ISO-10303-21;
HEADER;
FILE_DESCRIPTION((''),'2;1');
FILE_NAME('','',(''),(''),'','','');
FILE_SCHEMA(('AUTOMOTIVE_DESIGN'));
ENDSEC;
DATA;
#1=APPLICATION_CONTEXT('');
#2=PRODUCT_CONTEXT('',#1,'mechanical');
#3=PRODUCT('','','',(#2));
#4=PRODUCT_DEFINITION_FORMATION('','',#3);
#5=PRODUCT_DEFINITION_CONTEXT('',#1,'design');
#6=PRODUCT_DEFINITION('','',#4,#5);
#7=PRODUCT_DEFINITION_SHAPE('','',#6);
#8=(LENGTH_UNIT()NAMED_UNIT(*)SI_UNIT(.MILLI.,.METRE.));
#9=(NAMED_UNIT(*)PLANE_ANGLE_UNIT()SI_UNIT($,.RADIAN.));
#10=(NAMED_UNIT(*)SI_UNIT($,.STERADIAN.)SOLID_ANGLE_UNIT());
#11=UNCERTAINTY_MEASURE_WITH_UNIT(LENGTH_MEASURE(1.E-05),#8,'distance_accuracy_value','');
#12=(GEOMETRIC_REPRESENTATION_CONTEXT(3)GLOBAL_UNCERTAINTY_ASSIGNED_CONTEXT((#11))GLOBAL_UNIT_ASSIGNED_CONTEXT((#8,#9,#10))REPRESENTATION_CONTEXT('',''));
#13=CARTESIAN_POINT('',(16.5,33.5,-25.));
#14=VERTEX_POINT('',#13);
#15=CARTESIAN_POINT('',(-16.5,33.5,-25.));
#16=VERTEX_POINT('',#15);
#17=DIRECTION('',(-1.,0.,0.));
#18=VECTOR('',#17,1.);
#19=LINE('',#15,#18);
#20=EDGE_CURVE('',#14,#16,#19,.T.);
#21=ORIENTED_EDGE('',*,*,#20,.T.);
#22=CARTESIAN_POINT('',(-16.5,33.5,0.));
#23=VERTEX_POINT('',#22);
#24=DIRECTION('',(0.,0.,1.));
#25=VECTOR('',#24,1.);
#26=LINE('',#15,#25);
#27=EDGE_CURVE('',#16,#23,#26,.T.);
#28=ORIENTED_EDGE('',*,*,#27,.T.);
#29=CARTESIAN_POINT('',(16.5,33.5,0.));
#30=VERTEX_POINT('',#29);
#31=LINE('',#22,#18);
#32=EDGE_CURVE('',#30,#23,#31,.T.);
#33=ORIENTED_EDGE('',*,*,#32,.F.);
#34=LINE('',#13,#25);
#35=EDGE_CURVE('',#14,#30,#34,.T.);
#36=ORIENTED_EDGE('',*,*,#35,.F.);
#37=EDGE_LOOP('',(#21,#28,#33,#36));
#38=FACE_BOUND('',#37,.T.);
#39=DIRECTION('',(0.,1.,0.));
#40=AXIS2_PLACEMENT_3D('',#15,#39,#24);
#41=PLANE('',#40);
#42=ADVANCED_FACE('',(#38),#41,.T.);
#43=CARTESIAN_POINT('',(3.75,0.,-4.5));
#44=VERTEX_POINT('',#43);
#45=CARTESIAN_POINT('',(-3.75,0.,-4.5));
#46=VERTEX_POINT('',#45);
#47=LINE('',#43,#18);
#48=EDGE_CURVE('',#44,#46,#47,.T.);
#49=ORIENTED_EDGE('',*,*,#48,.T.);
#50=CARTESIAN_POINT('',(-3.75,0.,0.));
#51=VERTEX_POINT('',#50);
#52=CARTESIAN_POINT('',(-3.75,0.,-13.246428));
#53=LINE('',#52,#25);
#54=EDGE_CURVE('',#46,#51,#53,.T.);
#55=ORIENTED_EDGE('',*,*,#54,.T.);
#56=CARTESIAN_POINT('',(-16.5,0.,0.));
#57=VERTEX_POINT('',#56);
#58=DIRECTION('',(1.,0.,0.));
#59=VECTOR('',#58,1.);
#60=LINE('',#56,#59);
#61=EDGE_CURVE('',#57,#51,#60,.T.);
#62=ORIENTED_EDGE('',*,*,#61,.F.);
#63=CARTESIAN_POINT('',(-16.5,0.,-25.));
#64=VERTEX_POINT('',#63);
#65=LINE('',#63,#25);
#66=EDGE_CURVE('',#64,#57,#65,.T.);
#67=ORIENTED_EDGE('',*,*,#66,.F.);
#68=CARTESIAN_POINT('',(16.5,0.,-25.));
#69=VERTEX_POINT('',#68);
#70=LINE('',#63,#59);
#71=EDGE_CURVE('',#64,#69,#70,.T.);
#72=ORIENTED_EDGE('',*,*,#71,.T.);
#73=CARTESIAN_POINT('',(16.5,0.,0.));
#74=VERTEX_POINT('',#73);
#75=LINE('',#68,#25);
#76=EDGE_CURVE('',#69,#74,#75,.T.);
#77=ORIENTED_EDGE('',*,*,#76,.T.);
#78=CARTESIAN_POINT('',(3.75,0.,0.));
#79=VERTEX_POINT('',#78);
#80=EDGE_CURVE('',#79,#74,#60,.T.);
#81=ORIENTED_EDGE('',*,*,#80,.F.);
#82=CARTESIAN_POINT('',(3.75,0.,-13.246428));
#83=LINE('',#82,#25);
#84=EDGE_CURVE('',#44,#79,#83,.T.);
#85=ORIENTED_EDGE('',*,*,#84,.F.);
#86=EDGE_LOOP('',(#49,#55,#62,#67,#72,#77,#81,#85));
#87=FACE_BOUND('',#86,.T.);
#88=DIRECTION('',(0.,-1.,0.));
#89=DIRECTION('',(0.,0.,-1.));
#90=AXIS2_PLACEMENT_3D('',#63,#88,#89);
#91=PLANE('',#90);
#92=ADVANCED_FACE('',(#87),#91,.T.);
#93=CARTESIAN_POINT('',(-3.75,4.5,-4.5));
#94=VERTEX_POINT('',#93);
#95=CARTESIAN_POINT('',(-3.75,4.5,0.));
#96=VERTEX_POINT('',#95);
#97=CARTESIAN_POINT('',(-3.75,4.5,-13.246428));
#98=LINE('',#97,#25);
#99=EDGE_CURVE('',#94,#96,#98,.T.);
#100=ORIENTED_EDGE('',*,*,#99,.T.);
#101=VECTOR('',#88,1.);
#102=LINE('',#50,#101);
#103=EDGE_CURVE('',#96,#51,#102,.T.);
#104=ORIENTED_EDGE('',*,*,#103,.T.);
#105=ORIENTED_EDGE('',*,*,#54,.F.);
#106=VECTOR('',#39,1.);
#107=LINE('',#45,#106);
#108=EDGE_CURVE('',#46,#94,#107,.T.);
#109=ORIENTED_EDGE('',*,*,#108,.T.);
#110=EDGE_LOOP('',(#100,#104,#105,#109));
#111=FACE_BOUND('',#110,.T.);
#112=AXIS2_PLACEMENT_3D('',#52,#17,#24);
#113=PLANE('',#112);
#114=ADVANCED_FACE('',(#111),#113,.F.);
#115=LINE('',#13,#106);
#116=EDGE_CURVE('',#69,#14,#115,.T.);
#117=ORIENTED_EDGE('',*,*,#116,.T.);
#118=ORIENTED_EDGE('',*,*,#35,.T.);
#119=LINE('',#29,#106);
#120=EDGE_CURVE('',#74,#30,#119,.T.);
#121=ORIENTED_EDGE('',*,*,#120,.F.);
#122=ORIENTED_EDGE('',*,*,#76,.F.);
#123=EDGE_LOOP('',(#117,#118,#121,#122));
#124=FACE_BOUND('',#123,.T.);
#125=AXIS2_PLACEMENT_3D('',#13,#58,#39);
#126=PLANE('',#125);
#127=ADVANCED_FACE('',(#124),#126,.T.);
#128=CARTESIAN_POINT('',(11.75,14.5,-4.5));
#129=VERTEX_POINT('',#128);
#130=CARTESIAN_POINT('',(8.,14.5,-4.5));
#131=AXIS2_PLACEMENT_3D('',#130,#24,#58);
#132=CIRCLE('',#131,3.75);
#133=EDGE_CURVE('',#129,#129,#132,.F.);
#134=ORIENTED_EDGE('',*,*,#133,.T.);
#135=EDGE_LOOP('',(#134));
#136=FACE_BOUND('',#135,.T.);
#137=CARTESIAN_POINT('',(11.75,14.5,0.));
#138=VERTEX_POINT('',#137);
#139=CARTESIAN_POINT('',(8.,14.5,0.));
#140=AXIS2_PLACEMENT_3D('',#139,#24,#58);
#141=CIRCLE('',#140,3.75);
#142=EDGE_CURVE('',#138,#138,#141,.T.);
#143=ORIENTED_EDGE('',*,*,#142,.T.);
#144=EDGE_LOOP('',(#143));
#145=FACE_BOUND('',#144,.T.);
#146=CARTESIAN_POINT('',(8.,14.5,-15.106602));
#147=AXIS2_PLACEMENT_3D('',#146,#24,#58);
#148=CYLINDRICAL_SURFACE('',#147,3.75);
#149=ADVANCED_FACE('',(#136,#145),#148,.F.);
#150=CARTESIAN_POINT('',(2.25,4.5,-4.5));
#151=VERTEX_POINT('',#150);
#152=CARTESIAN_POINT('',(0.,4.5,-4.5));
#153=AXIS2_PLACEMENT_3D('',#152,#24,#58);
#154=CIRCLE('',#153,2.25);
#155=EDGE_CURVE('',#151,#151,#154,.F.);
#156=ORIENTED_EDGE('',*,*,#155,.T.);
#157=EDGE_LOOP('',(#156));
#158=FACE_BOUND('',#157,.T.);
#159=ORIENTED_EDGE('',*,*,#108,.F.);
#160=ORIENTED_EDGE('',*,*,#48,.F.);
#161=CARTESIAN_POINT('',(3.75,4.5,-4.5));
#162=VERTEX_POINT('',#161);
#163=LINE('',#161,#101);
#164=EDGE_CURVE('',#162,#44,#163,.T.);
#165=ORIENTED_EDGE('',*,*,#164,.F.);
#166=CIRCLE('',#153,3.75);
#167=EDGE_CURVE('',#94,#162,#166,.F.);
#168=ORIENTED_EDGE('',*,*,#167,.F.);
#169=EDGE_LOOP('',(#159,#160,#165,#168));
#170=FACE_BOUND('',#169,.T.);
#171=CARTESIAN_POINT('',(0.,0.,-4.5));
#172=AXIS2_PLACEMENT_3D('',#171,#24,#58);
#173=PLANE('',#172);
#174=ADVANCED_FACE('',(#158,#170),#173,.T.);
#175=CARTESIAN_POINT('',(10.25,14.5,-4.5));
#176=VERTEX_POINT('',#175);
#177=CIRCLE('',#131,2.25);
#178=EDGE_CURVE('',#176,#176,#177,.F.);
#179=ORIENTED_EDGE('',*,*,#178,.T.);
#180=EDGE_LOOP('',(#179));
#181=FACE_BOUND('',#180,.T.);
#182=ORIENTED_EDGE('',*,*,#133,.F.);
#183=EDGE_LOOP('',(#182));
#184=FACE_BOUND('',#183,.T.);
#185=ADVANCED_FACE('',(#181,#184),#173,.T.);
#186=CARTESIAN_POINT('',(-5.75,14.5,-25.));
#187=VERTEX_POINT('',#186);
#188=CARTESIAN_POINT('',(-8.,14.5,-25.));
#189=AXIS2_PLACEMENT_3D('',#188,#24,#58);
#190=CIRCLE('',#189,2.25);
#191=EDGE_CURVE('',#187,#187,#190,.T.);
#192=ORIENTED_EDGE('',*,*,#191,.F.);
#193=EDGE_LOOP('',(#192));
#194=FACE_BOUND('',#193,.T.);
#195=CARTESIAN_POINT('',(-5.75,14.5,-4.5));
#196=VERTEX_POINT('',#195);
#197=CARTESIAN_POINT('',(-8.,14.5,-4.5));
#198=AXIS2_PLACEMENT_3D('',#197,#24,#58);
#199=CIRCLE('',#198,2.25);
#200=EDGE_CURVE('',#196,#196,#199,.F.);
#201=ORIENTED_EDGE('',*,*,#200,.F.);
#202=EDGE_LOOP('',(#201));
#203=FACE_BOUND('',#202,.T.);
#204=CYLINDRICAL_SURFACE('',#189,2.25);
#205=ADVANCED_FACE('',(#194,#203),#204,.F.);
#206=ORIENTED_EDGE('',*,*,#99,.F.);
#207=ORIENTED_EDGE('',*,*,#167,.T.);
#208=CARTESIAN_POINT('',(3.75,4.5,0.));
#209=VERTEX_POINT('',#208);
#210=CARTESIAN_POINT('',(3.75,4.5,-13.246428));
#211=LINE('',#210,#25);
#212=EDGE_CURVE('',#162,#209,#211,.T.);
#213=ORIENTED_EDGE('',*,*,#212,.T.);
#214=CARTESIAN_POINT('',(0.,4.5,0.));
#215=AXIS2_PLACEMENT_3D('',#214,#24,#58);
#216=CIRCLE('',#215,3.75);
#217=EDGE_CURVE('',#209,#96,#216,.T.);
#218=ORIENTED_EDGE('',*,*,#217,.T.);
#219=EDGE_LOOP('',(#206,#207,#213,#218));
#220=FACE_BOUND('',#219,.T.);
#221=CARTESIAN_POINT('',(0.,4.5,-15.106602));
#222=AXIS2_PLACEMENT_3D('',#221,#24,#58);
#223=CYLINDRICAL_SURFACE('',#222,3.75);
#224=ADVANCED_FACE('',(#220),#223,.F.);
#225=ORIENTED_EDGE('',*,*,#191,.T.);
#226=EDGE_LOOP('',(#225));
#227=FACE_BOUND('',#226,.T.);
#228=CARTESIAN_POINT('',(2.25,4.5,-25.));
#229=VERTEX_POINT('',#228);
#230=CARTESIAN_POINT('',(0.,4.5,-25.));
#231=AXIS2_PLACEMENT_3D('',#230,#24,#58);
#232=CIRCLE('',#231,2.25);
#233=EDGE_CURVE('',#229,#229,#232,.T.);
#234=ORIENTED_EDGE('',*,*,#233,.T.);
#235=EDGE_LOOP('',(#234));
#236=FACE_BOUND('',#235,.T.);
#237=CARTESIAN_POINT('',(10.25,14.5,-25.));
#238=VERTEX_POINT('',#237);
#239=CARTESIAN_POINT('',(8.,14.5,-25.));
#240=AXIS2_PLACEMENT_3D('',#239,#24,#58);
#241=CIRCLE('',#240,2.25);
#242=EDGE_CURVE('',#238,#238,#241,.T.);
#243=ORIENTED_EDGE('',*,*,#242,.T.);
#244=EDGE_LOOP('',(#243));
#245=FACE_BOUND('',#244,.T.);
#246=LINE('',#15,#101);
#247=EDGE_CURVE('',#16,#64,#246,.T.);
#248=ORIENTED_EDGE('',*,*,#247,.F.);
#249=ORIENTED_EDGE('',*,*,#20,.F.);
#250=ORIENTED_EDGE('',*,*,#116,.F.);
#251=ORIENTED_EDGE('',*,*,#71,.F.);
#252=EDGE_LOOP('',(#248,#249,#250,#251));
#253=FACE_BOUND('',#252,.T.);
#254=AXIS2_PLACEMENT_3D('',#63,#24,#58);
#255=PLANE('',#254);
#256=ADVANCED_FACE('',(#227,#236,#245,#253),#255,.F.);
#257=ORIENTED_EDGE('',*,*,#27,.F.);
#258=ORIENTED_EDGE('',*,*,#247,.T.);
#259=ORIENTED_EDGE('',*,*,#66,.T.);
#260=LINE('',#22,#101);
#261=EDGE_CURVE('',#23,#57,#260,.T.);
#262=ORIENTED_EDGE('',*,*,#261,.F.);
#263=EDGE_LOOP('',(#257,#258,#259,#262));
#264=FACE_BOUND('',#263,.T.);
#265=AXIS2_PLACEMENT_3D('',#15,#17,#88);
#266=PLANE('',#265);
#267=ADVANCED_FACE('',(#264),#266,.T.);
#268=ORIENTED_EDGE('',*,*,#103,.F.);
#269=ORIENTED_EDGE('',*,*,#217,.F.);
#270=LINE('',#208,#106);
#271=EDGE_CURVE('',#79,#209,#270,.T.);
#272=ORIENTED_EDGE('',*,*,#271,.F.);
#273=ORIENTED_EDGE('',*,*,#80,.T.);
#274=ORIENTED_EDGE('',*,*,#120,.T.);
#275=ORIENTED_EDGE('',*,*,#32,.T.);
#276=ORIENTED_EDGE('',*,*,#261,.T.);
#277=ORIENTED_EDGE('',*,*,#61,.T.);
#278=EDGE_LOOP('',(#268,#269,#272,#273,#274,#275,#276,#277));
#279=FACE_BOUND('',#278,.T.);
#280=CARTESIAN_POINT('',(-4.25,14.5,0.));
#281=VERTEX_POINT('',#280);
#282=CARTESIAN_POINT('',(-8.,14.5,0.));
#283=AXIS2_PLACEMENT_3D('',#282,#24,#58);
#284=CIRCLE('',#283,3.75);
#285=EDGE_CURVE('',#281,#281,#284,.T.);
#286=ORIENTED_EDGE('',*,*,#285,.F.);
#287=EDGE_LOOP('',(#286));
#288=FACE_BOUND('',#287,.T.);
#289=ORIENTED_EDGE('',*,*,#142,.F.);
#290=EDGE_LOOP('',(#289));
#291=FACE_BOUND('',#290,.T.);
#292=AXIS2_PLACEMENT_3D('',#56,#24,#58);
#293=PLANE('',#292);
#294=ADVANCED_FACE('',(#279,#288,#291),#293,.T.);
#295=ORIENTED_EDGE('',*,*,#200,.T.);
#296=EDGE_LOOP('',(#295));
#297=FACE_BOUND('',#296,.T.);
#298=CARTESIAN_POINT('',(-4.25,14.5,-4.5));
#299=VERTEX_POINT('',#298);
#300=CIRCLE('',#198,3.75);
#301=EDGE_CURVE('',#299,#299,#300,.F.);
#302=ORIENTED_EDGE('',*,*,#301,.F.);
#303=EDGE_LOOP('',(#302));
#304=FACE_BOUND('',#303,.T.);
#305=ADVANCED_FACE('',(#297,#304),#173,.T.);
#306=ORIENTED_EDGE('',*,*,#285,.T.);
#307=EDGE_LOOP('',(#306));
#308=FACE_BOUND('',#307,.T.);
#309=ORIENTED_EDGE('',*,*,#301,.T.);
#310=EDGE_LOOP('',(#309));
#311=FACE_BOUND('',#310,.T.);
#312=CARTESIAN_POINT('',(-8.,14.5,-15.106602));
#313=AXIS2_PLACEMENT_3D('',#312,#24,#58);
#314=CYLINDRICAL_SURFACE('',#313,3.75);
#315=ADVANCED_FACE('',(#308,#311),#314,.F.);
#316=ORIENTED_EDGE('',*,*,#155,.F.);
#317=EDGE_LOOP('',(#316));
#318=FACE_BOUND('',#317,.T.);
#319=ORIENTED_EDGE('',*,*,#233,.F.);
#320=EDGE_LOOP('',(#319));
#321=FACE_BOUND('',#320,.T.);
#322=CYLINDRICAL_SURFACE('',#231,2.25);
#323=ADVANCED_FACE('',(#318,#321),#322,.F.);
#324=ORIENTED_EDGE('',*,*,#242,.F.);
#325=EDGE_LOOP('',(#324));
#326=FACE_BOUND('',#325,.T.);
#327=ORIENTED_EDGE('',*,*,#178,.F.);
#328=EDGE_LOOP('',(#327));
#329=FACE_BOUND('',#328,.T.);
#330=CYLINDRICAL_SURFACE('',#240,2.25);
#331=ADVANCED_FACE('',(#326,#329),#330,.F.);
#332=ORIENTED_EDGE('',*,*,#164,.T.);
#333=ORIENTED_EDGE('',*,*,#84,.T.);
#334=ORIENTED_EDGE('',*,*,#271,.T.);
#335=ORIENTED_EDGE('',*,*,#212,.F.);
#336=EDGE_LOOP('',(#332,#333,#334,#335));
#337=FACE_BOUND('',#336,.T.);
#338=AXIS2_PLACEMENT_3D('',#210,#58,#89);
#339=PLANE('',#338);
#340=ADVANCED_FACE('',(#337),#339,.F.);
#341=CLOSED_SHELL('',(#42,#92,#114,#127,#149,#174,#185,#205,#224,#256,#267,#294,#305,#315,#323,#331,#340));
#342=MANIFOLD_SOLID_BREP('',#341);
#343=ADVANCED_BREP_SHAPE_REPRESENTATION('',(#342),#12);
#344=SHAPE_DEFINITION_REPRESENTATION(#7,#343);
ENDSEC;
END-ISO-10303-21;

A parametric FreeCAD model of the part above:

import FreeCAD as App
import Part
import Sketcher

V = App.Vector
Q = App.Units.Quantity

doc = App.newDocument("Part")
body = doc.addObject("PartDesign::Body", "Body")

sketch1 = doc.addObject("Sketcher::SketchObject", "Sketch")
body.addObject(sketch1)
sketch1.AttachmentSupport = (doc.XY_Plane, [""])
sketch1.MapMode = "FlatFace"
sketch1.addGeometry([
    Part.LineSegment(V(-16, 34, 0), V(-16, 0, 0)),
    Part.LineSegment(V(-16, 0, 0), V(16, 0, 0)),
    Part.LineSegment(V(16, 0, 0), V(16, 34, 0)),
    Part.LineSegment(V(16, 34, 0), V(-16, 34, 0)),
], False)
sketch1.addConstraint([
    Sketcher.Constraint("Coincident", 0, 2, 1, 1),
    Sketcher.Constraint("Coincident", 1, 2, 2, 1),
    Sketcher.Constraint("Coincident", 2, 2, 3, 1),
    Sketcher.Constraint("Coincident", 3, 2, 0, 1),
    Sketcher.Constraint("Vertical", 0),
    Sketcher.Constraint("Horizontal", 1),
    Sketcher.Constraint("Vertical", 2),
    Sketcher.Constraint("Horizontal", 3),
    Sketcher.Constraint("Symmetric", 0, 2, 1, 2, -1, 1),
    Sketcher.Constraint("DistanceX", 1, 1, 1, 2, Q("33 mm")),
    Sketcher.Constraint("DistanceY", 0, 2, 0, 1, Q("33.5 mm")),
])
pad1 = doc.addObject("PartDesign::Pad", "Pad")
body.addObject(pad1)
pad1.Profile = sketch1
pad1.Length = 25
pad1.Reversed = True

sketch2 = doc.addObject("Sketcher::SketchObject", "Sketch001")
body.addObject(sketch2)
sketch2.AttachmentSupport = (doc.XY_Plane, [""])
sketch2.MapMode = "FlatFace"
sketch2.addGeometry([
    Part.Circle(V(0, 4.5, 0), V(0, 0, 1), 2.2),
    Part.Circle(V(-8, 14.5, 0), V(0, 0, 1), 2.2),
    Part.Circle(V(8, 14.5, 0), V(0, 0, 1), 2.2),
], False)
sketch2.addConstraint([
    Sketcher.Constraint("Equal", 0, 1),
    Sketcher.Constraint("Equal", 1, 2),
    Sketcher.Constraint("Symmetric", 1, 3, 2, 3, -2),
    Sketcher.Constraint("PointOnObject", 0, 3, -2),
    Sketcher.Constraint("Diameter", 0, Q("4.5 mm")),
    Sketcher.Constraint("DistanceX", 1, 3, -1, 1, Q("8 mm")),
    Sketcher.Constraint("DistanceY", 0, 3, 1, 3, Q("10 mm")),
    Sketcher.Constraint("DistanceY", -1, 1, 0, 3, Q("4.5 mm")),
])
pocket1 = doc.addObject("PartDesign::Pocket", "Pocket")
body.addObject(pocket1)
pocket1.Profile = sketch2
pocket1.Type = "ThroughAll"

sketch3 = doc.addObject("Sketcher::SketchObject", "Sketch002")
body.addObject(sketch3)
sketch3.AttachmentSupport = (doc.XY_Plane, [""])
sketch3.MapMode = "FlatFace"
sketch3.AttachmentOffset = App.Placement(V(0, 0, -4.5), App.Rotation())
sketch3.addGeometry([
    Part.LineSegment(V(-3.8, 4.5, 0), V(-3.8, 0, 0)),
    Part.LineSegment(V(-3.8, 0, 0), V(3.8, 0, 0)),
    Part.LineSegment(V(3.8, 0, 0), V(3.8, 4.5, 0)),
    Part.LineSegment(V(3.8, 4.5, 0), V(-3.8, 4.5, 0)),
], False)
sketch3.addConstraint([
    Sketcher.Constraint("Coincident", 0, 2, 1, 1),
    Sketcher.Constraint("Coincident", 1, 2, 2, 1),
    Sketcher.Constraint("Coincident", 2, 2, 3, 1),
    Sketcher.Constraint("Coincident", 3, 2, 0, 1),
    Sketcher.Constraint("Vertical", 0),
    Sketcher.Constraint("Horizontal", 1),
    Sketcher.Constraint("Vertical", 2),
    Sketcher.Constraint("Horizontal", 3),
    Sketcher.Constraint("Symmetric", 0, 2, 1, 2, -1, 1),
    Sketcher.Constraint("DistanceX", 1, 1, 1, 2, Q("7.5 mm")),
    Sketcher.Constraint("DistanceY", 0, 2, 0, 1, Q("4.5 mm")),
])
pocket2 = doc.addObject("PartDesign::Pocket", "Pocket001")
body.addObject(pocket2)
pocket2.Profile = sketch3
pocket2.Length = 4.5
pocket2.Reversed = True

sketch4 = doc.addObject("Sketcher::SketchObject", "Sketch003")
body.addObject(sketch4)
sketch4.AttachmentSupport = (doc.XY_Plane, [""])
sketch4.MapMode = "FlatFace"
sketch4.AttachmentOffset = App.Placement(V(0, 0, -4.5), App.Rotation())
sketch4.addGeometry([
    Part.Circle(V(-8, 14.5, 0), V(0, 0, 1), 3.8),
    Part.Circle(V(8, 14.5, 0), V(0, 0, 1), 3.8),
    Part.Circle(V(0, 4.5, 0), V(0, 0, 1), 3.8),
], False)
sketch4.addConstraint([
    Sketcher.Constraint("Equal", 0, 1),
    Sketcher.Constraint("Equal", 1, 2),
    Sketcher.Constraint("Symmetric", 0, 3, 1, 3, -2),
    Sketcher.Constraint("PointOnObject", 2, 3, -2),
    Sketcher.Constraint("Diameter", 0, Q("7.5 mm")),
    Sketcher.Constraint("DistanceX", 0, 3, -1, 1, Q("8 mm")),
    Sketcher.Constraint("DistanceY", 2, 3, 0, 3, Q("10 mm")),
    Sketcher.Constraint("DistanceY", -1, 1, 0, 3, Q("14.5 mm")),
])
pocket3 = doc.addObject("PartDesign::Pocket", "Pocket002")
body.addObject(pocket3)
pocket3.Profile = sketch4
pocket3.Length = 4.5
pocket3.Reversed = True

doc.recompute()
